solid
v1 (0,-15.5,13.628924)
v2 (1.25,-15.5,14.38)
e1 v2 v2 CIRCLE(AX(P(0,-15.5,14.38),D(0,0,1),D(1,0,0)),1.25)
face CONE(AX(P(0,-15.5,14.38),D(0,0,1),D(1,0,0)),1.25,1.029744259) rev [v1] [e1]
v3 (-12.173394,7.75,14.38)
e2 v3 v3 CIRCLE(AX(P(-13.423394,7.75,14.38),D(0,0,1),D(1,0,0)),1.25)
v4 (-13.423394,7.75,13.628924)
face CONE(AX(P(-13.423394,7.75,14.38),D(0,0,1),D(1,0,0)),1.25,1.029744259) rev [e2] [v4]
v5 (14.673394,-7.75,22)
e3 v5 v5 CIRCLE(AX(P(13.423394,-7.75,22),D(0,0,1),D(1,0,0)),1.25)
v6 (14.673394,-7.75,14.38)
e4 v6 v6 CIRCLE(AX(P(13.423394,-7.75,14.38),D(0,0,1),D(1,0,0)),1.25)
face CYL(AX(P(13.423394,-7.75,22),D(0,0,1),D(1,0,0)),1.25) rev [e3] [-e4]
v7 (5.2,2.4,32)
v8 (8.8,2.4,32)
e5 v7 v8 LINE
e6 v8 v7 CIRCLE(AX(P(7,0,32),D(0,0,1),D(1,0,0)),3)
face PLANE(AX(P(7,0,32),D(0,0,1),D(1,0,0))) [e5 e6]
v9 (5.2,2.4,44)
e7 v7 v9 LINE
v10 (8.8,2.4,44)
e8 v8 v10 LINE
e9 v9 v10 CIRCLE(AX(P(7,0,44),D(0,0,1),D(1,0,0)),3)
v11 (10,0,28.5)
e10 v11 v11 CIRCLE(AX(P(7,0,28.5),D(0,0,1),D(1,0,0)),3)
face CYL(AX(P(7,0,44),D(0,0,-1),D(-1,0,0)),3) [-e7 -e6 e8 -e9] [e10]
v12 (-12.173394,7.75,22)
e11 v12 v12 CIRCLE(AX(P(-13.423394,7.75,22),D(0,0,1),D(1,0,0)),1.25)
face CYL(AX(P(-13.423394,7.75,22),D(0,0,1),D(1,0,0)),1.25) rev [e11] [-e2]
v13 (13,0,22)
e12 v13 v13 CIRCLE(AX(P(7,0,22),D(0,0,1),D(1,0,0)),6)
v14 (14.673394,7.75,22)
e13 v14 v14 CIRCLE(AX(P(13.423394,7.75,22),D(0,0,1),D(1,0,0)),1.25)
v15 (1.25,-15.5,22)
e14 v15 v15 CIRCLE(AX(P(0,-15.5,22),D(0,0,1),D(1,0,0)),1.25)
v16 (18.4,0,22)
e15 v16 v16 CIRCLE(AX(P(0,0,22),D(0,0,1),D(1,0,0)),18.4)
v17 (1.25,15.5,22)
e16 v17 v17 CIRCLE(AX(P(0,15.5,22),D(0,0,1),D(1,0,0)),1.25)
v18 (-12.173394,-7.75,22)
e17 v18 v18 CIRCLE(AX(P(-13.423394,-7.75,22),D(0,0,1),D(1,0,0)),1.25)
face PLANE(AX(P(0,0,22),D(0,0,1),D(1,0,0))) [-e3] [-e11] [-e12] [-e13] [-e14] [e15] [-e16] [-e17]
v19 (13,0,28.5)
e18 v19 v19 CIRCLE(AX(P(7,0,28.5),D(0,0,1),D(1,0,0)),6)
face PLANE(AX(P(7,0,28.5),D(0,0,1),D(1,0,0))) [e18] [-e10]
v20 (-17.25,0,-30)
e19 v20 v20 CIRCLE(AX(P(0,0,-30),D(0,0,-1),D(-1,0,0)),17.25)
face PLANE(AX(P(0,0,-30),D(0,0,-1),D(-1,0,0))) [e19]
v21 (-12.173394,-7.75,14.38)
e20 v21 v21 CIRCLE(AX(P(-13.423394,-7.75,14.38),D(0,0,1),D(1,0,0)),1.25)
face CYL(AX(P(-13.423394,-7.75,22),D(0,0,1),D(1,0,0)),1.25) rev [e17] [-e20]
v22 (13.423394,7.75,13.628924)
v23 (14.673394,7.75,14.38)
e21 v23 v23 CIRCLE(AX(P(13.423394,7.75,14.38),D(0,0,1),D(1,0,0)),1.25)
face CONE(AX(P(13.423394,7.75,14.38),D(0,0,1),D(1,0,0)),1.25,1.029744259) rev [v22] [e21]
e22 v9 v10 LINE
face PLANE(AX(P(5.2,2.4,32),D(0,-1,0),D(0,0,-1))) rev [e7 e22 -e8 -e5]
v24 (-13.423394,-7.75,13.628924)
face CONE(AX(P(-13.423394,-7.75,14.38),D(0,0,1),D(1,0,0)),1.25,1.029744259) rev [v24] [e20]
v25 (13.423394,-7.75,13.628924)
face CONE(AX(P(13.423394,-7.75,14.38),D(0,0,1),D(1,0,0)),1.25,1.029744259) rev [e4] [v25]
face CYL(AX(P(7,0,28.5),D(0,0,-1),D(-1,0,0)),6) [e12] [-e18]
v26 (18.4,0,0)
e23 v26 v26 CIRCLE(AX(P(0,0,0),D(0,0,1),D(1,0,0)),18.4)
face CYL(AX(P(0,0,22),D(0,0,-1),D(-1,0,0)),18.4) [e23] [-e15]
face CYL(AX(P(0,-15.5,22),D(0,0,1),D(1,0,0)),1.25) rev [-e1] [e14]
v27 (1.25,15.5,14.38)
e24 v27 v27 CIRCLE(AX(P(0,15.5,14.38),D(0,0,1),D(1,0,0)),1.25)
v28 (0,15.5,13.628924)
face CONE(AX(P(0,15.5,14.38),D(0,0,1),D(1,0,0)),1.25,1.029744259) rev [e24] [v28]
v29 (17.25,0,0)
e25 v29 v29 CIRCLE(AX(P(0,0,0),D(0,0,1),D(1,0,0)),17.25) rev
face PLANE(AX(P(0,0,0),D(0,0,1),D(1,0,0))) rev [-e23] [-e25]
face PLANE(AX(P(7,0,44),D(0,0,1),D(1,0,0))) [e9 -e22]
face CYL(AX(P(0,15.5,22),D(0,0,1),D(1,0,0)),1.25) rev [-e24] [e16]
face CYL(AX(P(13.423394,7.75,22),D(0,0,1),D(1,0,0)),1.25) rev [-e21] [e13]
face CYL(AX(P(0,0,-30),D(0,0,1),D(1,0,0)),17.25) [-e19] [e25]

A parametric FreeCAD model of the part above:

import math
import FreeCAD as App
import Part
import Sketcher
from FreeCAD import Vector
Q = App.Units.Quantity

doc = App.newDocument("Part")
body = doc.addObject("PartDesign::Body", "Body")

sketch1 = doc.addObject("Sketcher::SketchObject", "Sketch")
body.addObject(sketch1)
sketch1.AttachmentSupport = (doc.XY_Plane, [""])
sketch1.MapMode = "FlatFace"
sketch1.addGeometry(Part.Circle(Vector(0, 0, 0), Vector(0, 0, 1), 18.4), False)
sketch1.addConstraint(Sketcher.Constraint("Coincident", 0, 3, -1, 1))
sketch1.addConstraint(Sketcher.Constraint("Diameter", 0, Q("36.8 mm")))
pad1 = doc.addObject("PartDesign::Pad", "Pad")
body.addObject(pad1)
pad1.Profile = sketch1
pad1.Length = 22

sketch2 = doc.addObject("Sketcher::SketchObject", "Sketch001")
body.addObject(sketch2)
sketch2.AttachmentSupport = (doc.XY_Plane, [""])
sketch2.MapMode = "FlatFace"
sketch2.AttachmentOffset = App.Placement(Vector(0, 0, 22), App.Rotation())
sketch2.addGeometry(Part.Circle(Vector(-13.423394, 7.75, 0), Vector(0, 0, 1), 1.25), False)
sketch2.addGeometry(Part.Circle(Vector(0, 15.5, 0), Vector(0, 0, 1), 1.25), False)
sketch2.addGeometry(Part.Circle(Vector(13.423394, 7.75, 0), Vector(0, 0, 1), 1.25), False)
sketch2.addGeometry(Part.Circle(Vector(13.423394, -7.75, 0), Vector(0, 0, 1), 1.25), False)
sketch2.addGeometry(Part.Circle(Vector(0, -15.5, 0), Vector(0, 0, 1), 1.25), False)
sketch2.addGeometry(Part.Circle(Vector(-13.423394, -7.75, 0), Vector(0, 0, 1), 1.25), False)
sketch2.addConstraint(Sketcher.Constraint("Equal", 0, 1))
sketch2.addConstraint(Sketcher.Constraint("Equal", 1, 2))
sketch2.addConstraint(Sketcher.Constraint("Equal", 2, 3))
sketch2.addConstraint(Sketcher.Constraint("Equal", 3, 4))
sketch2.addConstraint(Sketcher.Constraint("Equal", 4, 5))
sketch2.addConstraint(Sketcher.Constraint("Symmetric", 0, 3, 3, 3, -1, 1))
sketch2.addConstraint(Sketcher.Constraint("Symmetric", 1, 3, 4, 3, -1, 1))
sketch2.addConstraint(Sketcher.Constraint("Symmetric", 2, 3, 5, 3, -1, 1))
sketch2.addConstraint(Sketcher.Constraint("Symmetric", 0, 3, 2, 3, -2))
sketch2.addConstraint(Sketcher.Constraint("PointOnObject", 1, 3, -2))
sketch2.addConstraint(Sketcher.Constraint("Diameter", 0, Q("2.5 mm")))
sketch2.addConstraint(Sketcher.Constraint("DistanceY", 4, 3, 1, 3, Q("31 mm")))
sketch2.addConstraint(Sketcher.Constraint("DistanceY", 3, 3, 2, 3, Q("15.5 mm")))
sketch2.addConstraint(Sketcher.Constraint("DistanceX", 0, 3, -1, 1, Q("13.423394 mm")))
doc.recompute()
hole = doc.addObject("PartDesign::Hole", "Hole")
body.addObject(hole)
hole.Profile = sketch2
hole.ThreadType = "None"
hole.Diameter = 2.5
hole.DepthType = "Dimension"
hole.Depth = 7.62
hole.DrillPoint = "Angled"
hole.DrillPointAngle = 118

sketch3 = doc.addObject("Sketcher::SketchObject", "Sketch002")
body.addObject(sketch3)
sketch3.AttachmentSupport = (doc.XY_Plane, [""])
sketch3.MapMode = "FlatFace"
sketch3.addGeometry(Part.Circle(Vector(0, 0, 0), Vector(0, 0, 1), 17.25), False)
sketch3.addConstraint(Sketcher.Constraint("Coincident", 0, 3, -1, 1))
sketch3.addConstraint(Sketcher.Constraint("Diameter", 0, Q("34.5 mm")))
pad2 = doc.addObject("PartDesign::Pad", "Pad001")
body.addObject(pad2)
pad2.Profile = sketch3
pad2.Length = 30
pad2.Reversed = True

sketch4 = doc.addObject("Sketcher::SketchObject", "Sketch003")
body.addObject(sketch4)
sketch4.AttachmentSupport = (doc.XY_Plane, [""])
sketch4.MapMode = "FlatFace"
sketch4.AttachmentOffset = App.Placement(Vector(0, 0, 22), App.Rotation())
sketch4.addGeometry(Part.Circle(Vector(7, 0, 0), Vector(0, 0, 1), 3), False)
sketch4.addConstraint(Sketcher.Constraint("PointOnObject", 0, 3, -1))
sketch4.addConstraint(Sketcher.Constraint("Diameter", 0, Q("6 mm")))
sketch4.addConstraint(Sketcher.Constraint("DistanceX", -1, 1, 0, 3, Q("7 mm")))
pad3 = doc.addObject("PartDesign::Pad", "Pad002")
body.addObject(pad3)
pad3.Profile = sketch4
pad3.Length = 22

sketch5 = doc.addObject("Sketcher::SketchObject", "Sketch004")
body.addObject(sketch5)
sketch5.AttachmentSupport = (doc.XY_Plane, [""])
sketch5.MapMode = "FlatFace"
sketch5.AttachmentOffset = App.Placement(Vector(0, 0, 44), App.Rotation())
sketch5.addGeometry(Part.LineSegment(Vector(5.2, 2.4, 0), Vector(8.8, 2.4, 0)), False)
sketch5.addGeometry(Part.ArcOfCircle(Part.Circle(Vector(7, 0, 0), Vector(0, 0, 1), 3), math.radians(53.130102), math.radians(126.869898)), False)
sketch5.addConstraint(Sketcher.Constraint("Coincident", 0, 1, 1, 2))
sketch5.addConstraint(Sketcher.Constraint("Coincident", 1, 1, 0, 2))
sketch5.addConstraint(Sketcher.Constraint("Horizontal", 0))
sketch5.addConstraint(Sketcher.Constraint("PointOnObject", 1, 3, -1))
sketch5.addConstraint(Sketcher.Constraint("Radius", 1, Q("3 mm")))
sketch5.addConstraint(Sketcher.Constraint("DistanceX", 0, 1, 0, 2, Q("3.6 mm")))
sketch5.addConstraint(Sketcher.Constraint("DistanceX", -1, 1, 1, 3, Q("7 mm")))
pocket1 = doc.addObject("PartDesign::Pocket", "Pocket")
body.addObject(pocket1)
pocket1.Profile = sketch5
pocket1.Length = 12

sketch6 = doc.addObject("Sketcher::SketchObject", "Sketch005")
body.addObject(sketch6)
sketch6.AttachmentSupport = (doc.XY_Plane, [""])
sketch6.MapMode = "FlatFace"
sketch6.AttachmentOffset = App.Placement(Vector(0, 0, 22), App.Rotation())
sketch6.addGeometry(Part.Circle(Vector(7, 0, 0), Vector(0, 0, 1), 6), False)
sketch6.addConstraint(Sketcher.Constraint("PointOnObject", 0, 3, -1))
sketch6.addConstraint(Sketcher.Constraint("Diameter", 0, Q("12 mm")))
sketch6.addConstraint(Sketcher.Constraint("DistanceX", -1, 1, 0, 3, Q("7 mm")))
pad4 = doc.addObject("PartDesign::Pad", "Pad003")
body.addObject(pad4)
pad4.Profile = sketch6
pad4.Length = 6.5

doc.recompute()
